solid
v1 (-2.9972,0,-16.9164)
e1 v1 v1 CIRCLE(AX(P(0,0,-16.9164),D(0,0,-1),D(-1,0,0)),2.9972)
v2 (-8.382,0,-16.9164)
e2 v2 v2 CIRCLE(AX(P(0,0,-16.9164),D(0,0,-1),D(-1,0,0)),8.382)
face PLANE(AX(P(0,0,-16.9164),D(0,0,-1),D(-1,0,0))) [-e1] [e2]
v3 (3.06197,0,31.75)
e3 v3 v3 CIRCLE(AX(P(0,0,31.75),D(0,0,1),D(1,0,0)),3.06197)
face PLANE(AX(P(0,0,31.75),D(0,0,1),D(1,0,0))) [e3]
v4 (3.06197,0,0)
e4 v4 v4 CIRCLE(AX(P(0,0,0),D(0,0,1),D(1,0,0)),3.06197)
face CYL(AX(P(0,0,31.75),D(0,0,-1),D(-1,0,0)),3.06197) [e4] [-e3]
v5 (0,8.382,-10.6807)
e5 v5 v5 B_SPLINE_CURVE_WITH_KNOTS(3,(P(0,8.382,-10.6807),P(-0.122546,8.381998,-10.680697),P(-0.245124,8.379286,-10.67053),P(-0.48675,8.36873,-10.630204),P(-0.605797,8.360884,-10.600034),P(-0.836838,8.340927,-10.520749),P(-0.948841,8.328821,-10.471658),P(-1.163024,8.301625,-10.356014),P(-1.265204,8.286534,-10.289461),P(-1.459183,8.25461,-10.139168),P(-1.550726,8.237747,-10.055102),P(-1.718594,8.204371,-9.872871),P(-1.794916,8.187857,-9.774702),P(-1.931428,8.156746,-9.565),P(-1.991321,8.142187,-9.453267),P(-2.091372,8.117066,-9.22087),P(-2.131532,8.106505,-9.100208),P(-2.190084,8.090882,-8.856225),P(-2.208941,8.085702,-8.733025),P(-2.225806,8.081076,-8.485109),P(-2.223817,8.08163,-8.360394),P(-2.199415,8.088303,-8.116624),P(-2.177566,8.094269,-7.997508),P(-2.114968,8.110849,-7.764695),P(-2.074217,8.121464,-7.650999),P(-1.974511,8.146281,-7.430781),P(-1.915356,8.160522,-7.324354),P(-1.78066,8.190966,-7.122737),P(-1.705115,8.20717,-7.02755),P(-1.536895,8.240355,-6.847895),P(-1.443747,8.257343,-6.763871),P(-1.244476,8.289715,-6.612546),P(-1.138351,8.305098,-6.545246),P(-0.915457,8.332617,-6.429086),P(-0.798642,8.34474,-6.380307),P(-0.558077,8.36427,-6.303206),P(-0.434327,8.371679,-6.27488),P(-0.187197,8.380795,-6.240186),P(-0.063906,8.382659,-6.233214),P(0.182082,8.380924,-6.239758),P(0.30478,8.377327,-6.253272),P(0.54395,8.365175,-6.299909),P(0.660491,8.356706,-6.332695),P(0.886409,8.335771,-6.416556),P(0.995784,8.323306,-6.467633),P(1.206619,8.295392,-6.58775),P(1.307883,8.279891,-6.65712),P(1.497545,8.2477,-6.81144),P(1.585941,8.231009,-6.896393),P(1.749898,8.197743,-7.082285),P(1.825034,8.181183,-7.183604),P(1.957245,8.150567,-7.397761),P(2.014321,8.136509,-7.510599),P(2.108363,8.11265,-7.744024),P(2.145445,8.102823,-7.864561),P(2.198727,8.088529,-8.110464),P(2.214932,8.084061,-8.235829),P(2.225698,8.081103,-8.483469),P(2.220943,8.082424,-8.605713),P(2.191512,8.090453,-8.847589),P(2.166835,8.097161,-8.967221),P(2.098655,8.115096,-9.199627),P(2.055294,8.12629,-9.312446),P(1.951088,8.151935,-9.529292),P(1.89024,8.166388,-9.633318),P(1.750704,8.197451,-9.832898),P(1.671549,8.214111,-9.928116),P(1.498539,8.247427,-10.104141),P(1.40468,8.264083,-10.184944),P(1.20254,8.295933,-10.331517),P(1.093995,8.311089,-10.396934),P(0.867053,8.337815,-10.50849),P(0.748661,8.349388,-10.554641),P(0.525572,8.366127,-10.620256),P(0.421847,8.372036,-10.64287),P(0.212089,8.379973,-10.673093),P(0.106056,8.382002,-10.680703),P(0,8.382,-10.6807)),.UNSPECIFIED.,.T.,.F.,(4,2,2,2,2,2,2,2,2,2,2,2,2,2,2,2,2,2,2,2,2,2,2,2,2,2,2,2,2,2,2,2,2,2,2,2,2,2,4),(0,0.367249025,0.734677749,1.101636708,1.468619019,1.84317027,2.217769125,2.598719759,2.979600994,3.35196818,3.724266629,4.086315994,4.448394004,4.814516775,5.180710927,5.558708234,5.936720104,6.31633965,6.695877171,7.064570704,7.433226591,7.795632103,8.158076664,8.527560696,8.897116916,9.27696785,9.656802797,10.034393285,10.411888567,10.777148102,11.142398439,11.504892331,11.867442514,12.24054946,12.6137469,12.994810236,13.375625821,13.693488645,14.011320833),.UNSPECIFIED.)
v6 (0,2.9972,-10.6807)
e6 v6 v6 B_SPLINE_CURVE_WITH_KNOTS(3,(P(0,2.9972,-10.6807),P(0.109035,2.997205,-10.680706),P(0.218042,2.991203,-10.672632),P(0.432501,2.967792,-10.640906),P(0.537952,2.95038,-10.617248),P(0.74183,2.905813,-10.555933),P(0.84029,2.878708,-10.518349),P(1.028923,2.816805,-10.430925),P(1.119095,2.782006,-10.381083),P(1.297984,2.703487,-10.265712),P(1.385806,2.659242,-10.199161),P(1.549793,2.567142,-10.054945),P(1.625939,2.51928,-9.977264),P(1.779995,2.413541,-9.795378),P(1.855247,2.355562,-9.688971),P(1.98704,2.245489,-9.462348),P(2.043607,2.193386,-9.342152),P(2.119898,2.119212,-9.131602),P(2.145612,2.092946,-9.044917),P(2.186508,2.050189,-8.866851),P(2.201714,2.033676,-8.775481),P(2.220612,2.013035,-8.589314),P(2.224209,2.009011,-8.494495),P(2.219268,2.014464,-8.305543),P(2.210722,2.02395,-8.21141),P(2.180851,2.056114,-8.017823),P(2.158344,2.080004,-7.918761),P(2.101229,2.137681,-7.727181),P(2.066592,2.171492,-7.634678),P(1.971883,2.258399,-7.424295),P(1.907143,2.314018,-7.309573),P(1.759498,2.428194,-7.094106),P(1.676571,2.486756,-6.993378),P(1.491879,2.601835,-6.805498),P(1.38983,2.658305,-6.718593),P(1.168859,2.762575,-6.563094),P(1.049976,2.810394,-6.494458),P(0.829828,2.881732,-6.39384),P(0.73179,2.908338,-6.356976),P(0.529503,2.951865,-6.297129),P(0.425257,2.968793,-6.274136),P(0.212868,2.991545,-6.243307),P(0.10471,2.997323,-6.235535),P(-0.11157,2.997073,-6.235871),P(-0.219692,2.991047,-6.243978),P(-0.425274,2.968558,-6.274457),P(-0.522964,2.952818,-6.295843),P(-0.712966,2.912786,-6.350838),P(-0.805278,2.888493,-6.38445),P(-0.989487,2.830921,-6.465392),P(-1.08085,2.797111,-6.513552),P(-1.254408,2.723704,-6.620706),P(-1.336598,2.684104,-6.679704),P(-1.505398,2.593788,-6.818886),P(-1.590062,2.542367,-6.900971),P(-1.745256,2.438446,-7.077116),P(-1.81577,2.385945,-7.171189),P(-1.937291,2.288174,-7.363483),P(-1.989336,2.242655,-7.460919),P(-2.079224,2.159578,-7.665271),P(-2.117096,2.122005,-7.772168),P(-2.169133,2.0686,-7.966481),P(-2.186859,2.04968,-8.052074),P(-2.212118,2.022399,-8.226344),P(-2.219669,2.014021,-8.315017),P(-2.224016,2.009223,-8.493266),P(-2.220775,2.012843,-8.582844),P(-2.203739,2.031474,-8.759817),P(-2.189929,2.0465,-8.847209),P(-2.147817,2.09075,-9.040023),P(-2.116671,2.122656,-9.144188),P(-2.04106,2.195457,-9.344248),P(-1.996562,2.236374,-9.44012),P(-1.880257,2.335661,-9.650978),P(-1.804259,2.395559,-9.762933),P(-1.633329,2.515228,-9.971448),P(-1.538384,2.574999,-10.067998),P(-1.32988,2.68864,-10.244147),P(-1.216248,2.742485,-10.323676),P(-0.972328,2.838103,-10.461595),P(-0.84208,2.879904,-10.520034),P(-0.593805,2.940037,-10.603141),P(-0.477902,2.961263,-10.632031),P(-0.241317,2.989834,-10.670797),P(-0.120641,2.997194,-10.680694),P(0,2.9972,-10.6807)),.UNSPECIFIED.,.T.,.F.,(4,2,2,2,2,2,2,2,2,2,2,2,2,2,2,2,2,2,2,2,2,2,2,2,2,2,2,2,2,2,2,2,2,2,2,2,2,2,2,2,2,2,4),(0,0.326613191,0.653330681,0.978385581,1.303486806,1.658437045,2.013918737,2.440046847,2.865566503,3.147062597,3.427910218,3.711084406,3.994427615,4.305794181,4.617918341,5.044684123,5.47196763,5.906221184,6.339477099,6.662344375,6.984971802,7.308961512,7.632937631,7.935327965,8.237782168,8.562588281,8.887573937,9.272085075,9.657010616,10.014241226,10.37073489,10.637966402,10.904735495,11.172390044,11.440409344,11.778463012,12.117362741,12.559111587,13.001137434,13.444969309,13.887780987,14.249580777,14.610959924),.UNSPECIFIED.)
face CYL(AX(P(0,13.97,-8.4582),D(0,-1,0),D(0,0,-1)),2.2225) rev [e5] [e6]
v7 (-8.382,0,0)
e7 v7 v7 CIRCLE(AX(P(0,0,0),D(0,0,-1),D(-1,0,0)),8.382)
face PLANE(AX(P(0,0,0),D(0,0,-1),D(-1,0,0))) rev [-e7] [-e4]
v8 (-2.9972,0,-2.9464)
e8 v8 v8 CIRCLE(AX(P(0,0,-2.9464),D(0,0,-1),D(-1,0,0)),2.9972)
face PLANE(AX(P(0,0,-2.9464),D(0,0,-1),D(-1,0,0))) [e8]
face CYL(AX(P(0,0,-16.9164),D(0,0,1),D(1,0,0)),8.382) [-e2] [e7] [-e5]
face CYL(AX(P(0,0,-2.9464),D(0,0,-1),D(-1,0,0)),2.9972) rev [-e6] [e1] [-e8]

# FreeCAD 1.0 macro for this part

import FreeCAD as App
import Part
import Sketcher
Q = App.Units.Quantity

doc = App.newDocument("Part")
body = doc.addObject("PartDesign::Body", "Body")

sketch1 = body.newObject("Sketcher::SketchObject", "Sketch")
sketch1.AttachmentSupport = (doc.getObject("XY_Plane"), [""])
sketch1.MapMode = "FlatFace"
sketch1.addGeometry(Part.Circle(App.Vector(0, 0, 0), App.Vector(0, 0, 1), 3.1), False)
sketch1.addConstraint(Sketcher.Constraint("Coincident", 0, 3, -1, 1))
sketch1.addConstraint(Sketcher.Constraint("Diameter", 0, Q("0.2411 in")))
pad1 = body.newObject("PartDesign::Pad", "Pad")
pad1.Profile = sketch1
pad1.Length = Q("1.25 in")

sketch2 = body.newObject("Sketcher::SketchObject", "Sketch001")
sketch2.AttachmentSupport = (doc.getObject("XY_Plane"), [""])
sketch2.MapMode = "FlatFace"
sketch2.addGeometry(Part.Circle(App.Vector(0, 0, 0), App.Vector(0, 0, 1), 8), False)
sketch2.addConstraint(Sketcher.Constraint("Coincident", 0, 3, -1, 1))
sketch2.addConstraint(Sketcher.Constraint("Diameter", 0, Q("0.66 in")))
pad2 = body.newObject("PartDesign::Pad", "Pad001")
pad2.Profile = sketch2
pad2.Length = Q("0.666 in")
pad2.Reversed = True

sketch3 = body.newObject("Sketcher::SketchObject", "Sketch002")
sketch3.AttachmentSupport = (doc.getObject("XY_Plane"), [""])
sketch3.MapMode = "FlatFace"
sketch3.AttachmentOffset = App.Placement(App.Vector(0, 0, -0.666 * 25.4), App.Rotation())
sketch3.addGeometry(Part.Circle(App.Vector(0, 0, 0), App.Vector(0, 0, 1), 3), False)
sketch3.addConstraint(Sketcher.Constraint("Coincident", 0, 3, -1, 1))
sketch3.addConstraint(Sketcher.Constraint("Diameter", 0, Q("0.236 in")))
pocket1 = body.newObject("PartDesign::Pocket", "Pocket")
pocket1.Profile = sketch3
pocket1.Length = Q("0.55 in")
pocket1.Reversed = True

sketch4 = body.newObject("Sketcher::SketchObject", "Sketch003")
sketch4.AttachmentSupport = (doc.getObject("XZ_Plane"), [""])
sketch4.MapMode = "FlatFace"
sketch4.addGeometry(Part.Circle(App.Vector(0, -8.5, 0), App.Vector(0, 0, 1), 2.2), False)
sketch4.addConstraint(Sketcher.Constraint("PointOnObject", 0, 3, -2))
sketch4.addConstraint(Sketcher.Constraint("Diameter", 0, Q("0.175 in")))
sketch4.addConstraint(Sketcher.Constraint("DistanceY", 0, 3, -1, 1, Q("0.333 in")))
pocket2 = body.newObject("PartDesign::Pocket", "Pocket001")
pocket2.Profile = sketch4
pocket2.Length = Q("0.55 in")

doc.recompute()
